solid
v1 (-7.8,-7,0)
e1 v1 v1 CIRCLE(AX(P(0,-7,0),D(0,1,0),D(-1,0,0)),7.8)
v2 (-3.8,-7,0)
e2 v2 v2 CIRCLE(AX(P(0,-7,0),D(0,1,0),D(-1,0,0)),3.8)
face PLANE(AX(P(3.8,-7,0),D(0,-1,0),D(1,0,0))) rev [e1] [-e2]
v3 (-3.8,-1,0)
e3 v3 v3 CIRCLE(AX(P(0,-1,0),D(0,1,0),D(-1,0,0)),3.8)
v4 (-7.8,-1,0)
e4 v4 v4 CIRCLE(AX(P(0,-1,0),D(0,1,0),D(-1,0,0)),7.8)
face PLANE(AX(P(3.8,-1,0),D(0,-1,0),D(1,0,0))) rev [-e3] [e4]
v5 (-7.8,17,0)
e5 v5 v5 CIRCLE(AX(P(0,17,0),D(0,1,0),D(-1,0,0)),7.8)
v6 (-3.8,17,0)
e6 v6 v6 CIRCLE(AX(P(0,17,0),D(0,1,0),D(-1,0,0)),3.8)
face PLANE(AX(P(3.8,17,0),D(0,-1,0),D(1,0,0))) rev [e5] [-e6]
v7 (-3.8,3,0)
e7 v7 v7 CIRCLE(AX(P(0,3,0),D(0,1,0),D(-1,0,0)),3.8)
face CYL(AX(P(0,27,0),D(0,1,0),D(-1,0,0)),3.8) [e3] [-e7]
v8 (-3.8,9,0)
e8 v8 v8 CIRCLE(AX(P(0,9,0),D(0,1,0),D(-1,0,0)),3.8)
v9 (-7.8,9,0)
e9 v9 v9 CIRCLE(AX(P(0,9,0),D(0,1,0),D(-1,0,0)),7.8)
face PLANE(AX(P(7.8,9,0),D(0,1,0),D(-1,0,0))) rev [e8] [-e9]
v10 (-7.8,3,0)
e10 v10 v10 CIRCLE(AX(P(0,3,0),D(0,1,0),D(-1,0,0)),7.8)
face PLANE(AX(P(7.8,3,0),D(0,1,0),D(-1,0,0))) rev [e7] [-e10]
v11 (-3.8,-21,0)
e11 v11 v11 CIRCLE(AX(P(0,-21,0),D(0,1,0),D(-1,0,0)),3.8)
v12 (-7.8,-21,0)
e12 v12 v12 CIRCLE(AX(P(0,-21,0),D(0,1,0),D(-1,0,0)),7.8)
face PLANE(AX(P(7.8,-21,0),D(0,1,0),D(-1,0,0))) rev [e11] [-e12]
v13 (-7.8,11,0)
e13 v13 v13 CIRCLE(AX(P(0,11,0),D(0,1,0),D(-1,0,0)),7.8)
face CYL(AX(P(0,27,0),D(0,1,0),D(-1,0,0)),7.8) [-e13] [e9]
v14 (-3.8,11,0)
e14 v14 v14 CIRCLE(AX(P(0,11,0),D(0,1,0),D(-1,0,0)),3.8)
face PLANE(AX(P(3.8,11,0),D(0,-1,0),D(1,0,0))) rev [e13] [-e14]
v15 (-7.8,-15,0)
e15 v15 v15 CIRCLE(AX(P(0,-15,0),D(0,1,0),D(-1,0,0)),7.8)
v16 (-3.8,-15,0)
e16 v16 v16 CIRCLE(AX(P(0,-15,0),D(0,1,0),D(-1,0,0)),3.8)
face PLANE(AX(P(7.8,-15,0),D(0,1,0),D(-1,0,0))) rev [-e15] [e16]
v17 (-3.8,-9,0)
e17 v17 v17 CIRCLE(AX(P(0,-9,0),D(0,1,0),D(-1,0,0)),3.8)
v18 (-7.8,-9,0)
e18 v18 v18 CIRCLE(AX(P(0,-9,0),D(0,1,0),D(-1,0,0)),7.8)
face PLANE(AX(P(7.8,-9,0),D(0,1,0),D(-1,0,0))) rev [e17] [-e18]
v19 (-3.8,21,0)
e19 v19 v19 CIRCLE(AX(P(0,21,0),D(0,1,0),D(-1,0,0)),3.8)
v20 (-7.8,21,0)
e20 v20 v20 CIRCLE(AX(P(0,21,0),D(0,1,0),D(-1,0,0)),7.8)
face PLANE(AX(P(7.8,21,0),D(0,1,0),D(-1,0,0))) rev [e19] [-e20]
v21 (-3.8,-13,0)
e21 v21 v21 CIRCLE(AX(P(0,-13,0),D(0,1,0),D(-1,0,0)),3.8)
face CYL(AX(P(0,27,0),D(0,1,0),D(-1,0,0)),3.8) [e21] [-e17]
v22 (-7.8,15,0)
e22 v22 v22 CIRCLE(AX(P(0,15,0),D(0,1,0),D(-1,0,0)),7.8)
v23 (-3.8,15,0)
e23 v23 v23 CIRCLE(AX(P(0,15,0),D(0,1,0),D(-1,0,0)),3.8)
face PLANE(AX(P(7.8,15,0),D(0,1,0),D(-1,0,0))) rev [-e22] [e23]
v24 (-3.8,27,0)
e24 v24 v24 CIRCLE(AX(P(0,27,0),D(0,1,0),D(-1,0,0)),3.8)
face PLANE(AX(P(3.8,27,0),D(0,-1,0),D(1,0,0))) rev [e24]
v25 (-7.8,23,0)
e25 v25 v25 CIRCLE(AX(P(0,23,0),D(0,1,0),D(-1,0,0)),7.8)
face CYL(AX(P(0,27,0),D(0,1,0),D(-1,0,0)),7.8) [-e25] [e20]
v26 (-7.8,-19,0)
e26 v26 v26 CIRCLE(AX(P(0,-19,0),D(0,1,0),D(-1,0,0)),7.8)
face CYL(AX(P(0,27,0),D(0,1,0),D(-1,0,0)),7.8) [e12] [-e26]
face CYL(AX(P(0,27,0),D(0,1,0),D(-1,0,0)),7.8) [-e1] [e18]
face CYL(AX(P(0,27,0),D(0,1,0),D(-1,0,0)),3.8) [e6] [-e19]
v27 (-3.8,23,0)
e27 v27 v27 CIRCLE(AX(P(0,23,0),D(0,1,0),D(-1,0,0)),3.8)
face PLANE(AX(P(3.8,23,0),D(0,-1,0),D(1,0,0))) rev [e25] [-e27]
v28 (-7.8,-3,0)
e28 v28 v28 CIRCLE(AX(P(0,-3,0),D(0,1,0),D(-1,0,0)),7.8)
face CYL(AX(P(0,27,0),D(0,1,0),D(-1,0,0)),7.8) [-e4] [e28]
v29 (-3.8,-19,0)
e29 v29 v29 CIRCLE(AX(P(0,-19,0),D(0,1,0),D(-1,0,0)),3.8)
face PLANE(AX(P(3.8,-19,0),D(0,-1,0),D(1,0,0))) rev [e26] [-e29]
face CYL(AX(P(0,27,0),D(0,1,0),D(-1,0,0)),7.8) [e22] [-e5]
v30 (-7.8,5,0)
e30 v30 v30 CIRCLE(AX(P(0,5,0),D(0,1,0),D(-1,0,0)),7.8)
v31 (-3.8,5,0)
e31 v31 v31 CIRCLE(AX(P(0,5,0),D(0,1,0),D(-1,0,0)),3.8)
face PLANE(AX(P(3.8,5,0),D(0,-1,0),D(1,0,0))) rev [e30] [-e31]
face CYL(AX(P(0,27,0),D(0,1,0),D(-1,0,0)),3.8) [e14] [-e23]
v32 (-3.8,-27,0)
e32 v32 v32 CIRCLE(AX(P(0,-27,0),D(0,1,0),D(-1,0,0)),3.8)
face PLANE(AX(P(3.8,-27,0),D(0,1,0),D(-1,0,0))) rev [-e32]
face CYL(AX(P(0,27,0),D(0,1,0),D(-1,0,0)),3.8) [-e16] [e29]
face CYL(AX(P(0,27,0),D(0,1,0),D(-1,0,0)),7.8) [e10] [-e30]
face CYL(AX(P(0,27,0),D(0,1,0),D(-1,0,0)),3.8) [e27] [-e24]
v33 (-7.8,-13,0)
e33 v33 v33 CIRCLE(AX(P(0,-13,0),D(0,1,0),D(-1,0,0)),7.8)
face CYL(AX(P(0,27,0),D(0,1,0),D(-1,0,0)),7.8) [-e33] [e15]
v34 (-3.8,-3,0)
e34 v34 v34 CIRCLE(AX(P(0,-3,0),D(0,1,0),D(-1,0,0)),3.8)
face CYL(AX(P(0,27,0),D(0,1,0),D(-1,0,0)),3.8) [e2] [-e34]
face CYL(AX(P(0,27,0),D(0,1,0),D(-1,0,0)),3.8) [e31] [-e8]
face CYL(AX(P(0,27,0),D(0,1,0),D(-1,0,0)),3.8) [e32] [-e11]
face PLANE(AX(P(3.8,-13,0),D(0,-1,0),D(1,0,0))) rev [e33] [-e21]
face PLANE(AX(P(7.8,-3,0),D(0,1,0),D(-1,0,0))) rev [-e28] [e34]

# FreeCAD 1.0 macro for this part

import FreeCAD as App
import Part
import Sketcher
from FreeCAD import Vector

doc = App.newDocument("Part")
body = doc.addObject("PartDesign::Body", "Body")

# Sketch on XY plane
sketch1 = body.newObject("Sketcher::SketchObject", "Sketch")
sketch1.AttachmentSupport = (doc.getObject("XY_Plane"), [""])
sketch1.MapMode = "FlatFace"
sketch1.addGeometry(Part.LineSegment(Vector(3.8, 23, 0), Vector(3.8, 27, 0)), False)
sketch1.addGeometry(Part.LineSegment(Vector(3.8, 27, 0), Vector(0, 27, 0)), False)
sketch1.addGeometry(Part.LineSegment(Vector(0, 27, 0), Vector(0, -27, 0)), False)
sketch1.addGeometry(Part.LineSegment(Vector(0, -27, 0), Vector(3.8, -27, 0)), False)
sketch1.addGeometry(Part.LineSegment(Vector(3.8, -27, 0), Vector(3.8, -21, 0)), False)
sketch1.addGeometry(Part.LineSegment(Vector(3.8, -21, 0), Vector(7.8, -21, 0)), False)
sketch1.addGeometry(Part.LineSegment(Vector(7.8, -21, 0), Vector(7.8, -19, 0)), False)
sketch1.addGeometry(Part.LineSegment(Vector(7.8, -19, 0), Vector(3.8, -19, 0)), False)
sketch1.addGeometry(Part.LineSegment(Vector(3.8, -19, 0), Vector(3.8, -15, 0)), False)
sketch1.addGeometry(Part.LineSegment(Vector(3.8, -15, 0), Vector(7.8, -15, 0)), False)
sketch1.addGeometry(Part.LineSegment(Vector(7.8, -15, 0), Vector(7.8, -13, 0)), False)
sketch1.addGeometry(Part.LineSegment(Vector(7.8, -13, 0), Vector(3.8, -13, 0)), False)
sketch1.addGeometry(Part.LineSegment(Vector(3.8, -13, 0), Vector(3.8, -9, 0)), False)
sketch1.addGeometry(Part.LineSegment(Vector(3.8, -9, 0), Vector(7.8, -9, 0)), False)
sketch1.addGeometry(Part.LineSegment(Vector(7.8, -9, 0), Vector(7.8, -7, 0)), False)
sketch1.addGeometry(Part.LineSegment(Vector(7.8, -7, 0), Vector(3.8, -7, 0)), False)
sketch1.addGeometry(Part.LineSegment(Vector(3.8, -7, 0), Vector(3.8, -3, 0)), False)
sketch1.addGeometry(Part.LineSegment(Vector(3.8, -3, 0), Vector(7.8, -3, 0)), False)
sketch1.addGeometry(Part.LineSegment(Vector(7.8, -3, 0), Vector(7.8, -1, 0)), False)
sketch1.addGeometry(Part.LineSegment(Vector(7.8, -1, 0), Vector(3.8, -1, 0)), False)
sketch1.addGeometry(Part.LineSegment(Vector(3.8, -1, 0), Vector(3.8, 3, 0)), False)
sketch1.addGeometry(Part.LineSegment(Vector(3.8, 3, 0), Vector(7.8, 3, 0)), False)
sketch1.addGeometry(Part.LineSegment(Vector(7.8, 3, 0), Vector(7.8, 5, 0)), False)
sketch1.addGeometry(Part.LineSegment(Vector(7.8, 5, 0), Vector(3.8, 5, 0)), False)
sketch1.addGeometry(Part.LineSegment(Vector(3.8, 5, 0), Vector(3.8, 9, 0)), False)
sketch1.addGeometry(Part.LineSegment(Vector(3.8, 9, 0), Vector(7.8, 9, 0)), False)
sketch1.addGeometry(Part.LineSegment(Vector(7.8, 9, 0), Vector(7.8, 11, 0)), False)
sketch1.addGeometry(Part.LineSegment(Vector(7.8, 11, 0), Vector(3.8, 11, 0)), False)
sketch1.addGeometry(Part.LineSegment(Vector(3.8, 11, 0), Vector(3.8, 15, 0)), False)
sketch1.addGeometry(Part.LineSegment(Vector(3.8, 15, 0), Vector(7.8, 15, 0)), False)
sketch1.addGeometry(Part.LineSegment(Vector(7.8, 15, 0), Vector(7.8, 17, 0)), False)
sketch1.addGeometry(Part.LineSegment(Vector(7.8, 17, 0), Vector(3.8, 17, 0)), False)
sketch1.addGeometry(Part.LineSegment(Vector(3.8, 17, 0), Vector(3.8, 21, 0)), False)
sketch1.addGeometry(Part.LineSegment(Vector(3.8, 21, 0), Vector(7.8, 21, 0)), False)
sketch1.addGeometry(Part.LineSegment(Vector(7.8, 21, 0), Vector(7.8, 23, 0)), False)
sketch1.addGeometry(Part.LineSegment(Vector(7.8, 23, 0), Vector(3.8, 23, 0)), False)
sketch1.addConstraint(Sketcher.Constraint("Coincident", 0, 2, 1, 1))
sketch1.addConstraint(Sketcher.Constraint("Coincident", 1, 2, 2, 1))
sketch1.addConstraint(Sketcher.Constraint("Coincident", 2, 2, 3, 1))
sketch1.addConstraint(Sketcher.Constraint("Coincident", 3, 2, 4, 1))
sketch1.addConstraint(Sketcher.Constraint("Coincident", 4, 2, 5, 1))
sketch1.addConstraint(Sketcher.Constraint("Coincident", 5, 2, 6, 1))
sketch1.addConstraint(Sketcher.Constraint("Coincident", 6, 2, 7, 1))
sketch1.addConstraint(Sketcher.Constraint("Coincident", 7, 2, 8, 1))
sketch1.addConstraint(Sketcher.Constraint("Coincident", 8, 2, 9, 1))
sketch1.addConstraint(Sketcher.Constraint("Coincident", 9, 2, 10, 1))
sketch1.addConstraint(Sketcher.Constraint("Coincident", 10, 2, 11, 1))
sketch1.addConstraint(Sketcher.Constraint("Coincident", 11, 2, 12, 1))
sketch1.addConstraint(Sketcher.Constraint("Coincident", 12, 2, 13, 1))
sketch1.addConstraint(Sketcher.Constraint("Coincident", 13, 2, 14, 1))
sketch1.addConstraint(Sketcher.Constraint("Coincident", 14, 2, 15, 1))
sketch1.addConstraint(Sketcher.Constraint("Coincident", 15, 2, 16, 1))
sketch1.addConstraint(Sketcher.Constraint("Coincident", 16, 2, 17, 1))
sketch1.addConstraint(Sketcher.Constraint("Coincident", 17, 2, 18, 1))
sketch1.addConstraint(Sketcher.Constraint("Coincident", 18, 2, 19, 1))
sketch1.addConstraint(Sketcher.Constraint("Coincident", 19, 2, 20, 1))
sketch1.addConstraint(Sketcher.Constraint("Coincident", 20, 2, 21, 1))
sketch1.addConstraint(Sketcher.Constraint("Coincident", 21, 2, 22, 1))
sketch1.addConstraint(Sketcher.Constraint("Coincident", 22, 2, 23, 1))
sketch1.addConstraint(Sketcher.Constraint("Coincident", 23, 2, 24, 1))
sketch1.addConstraint(Sketcher.Constraint("Coincident", 24, 2, 25, 1))
sketch1.addConstraint(Sketcher.Constraint("Coincident", 25, 2, 26, 1))
sketch1.addConstraint(Sketcher.Constraint("Coincident", 26, 2, 27, 1))
sketch1.addConstraint(Sketcher.Constraint("Coincident", 27, 2, 28, 1))
sketch1.addConstraint(Sketcher.Constraint("Coincident", 28, 2, 29, 1))
sketch1.addConstraint(Sketcher.Constraint("Coincident", 29, 2, 30, 1))
sketch1.addConstraint(Sketcher.Constraint("Coincident", 30, 2, 31, 1))
sketch1.addConstraint(Sketcher.Constraint("Coincident", 31, 2, 32, 1))
sketch1.addConstraint(Sketcher.Constraint("Coincident", 32, 2, 33, 1))
sketch1.addConstraint(Sketcher.Constraint("Coincident", 33, 2, 34, 1))
sketch1.addConstraint(Sketcher.Constraint("Coincident", 34, 2, 35, 1))
sketch1.addConstraint(Sketcher.Constraint("Coincident", 35, 2, 0, 1))
sketch1.addConstraint(Sketcher.Constraint("Vertical", 0))
sketch1.addConstraint(Sketcher.Constraint("Horizontal", 1))
sketch1.addConstraint(Sketcher.Constraint("Vertical", 2))
sketch1.addConstraint(Sketcher.Constraint("Horizontal", 3))
sketch1.addConstraint(Sketcher.Constraint("Vertical", 4))
sketch1.addConstraint(Sketcher.Constraint("Horizontal", 5))
sketch1.addConstraint(Sketcher.Constraint("Vertical", 6))
sketch1.addConstraint(Sketcher.Constraint("Horizontal", 7))
sketch1.addConstraint(Sketcher.Constraint("Vertical", 8))
sketch1.addConstraint(Sketcher.Constraint("Horizontal", 9))
sketch1.addConstraint(Sketcher.Constraint("Vertical", 10))
sketch1.addConstraint(Sketcher.Constraint("Horizontal", 11))
sketch1.addConstraint(Sketcher.Constraint("Vertical", 12))
sketch1.addConstraint(Sketcher.Constraint("Horizontal", 13))
sketch1.addConstraint(Sketcher.Constraint("Vertical", 14))
sketch1.addConstraint(Sketcher.Constraint("Horizontal", 15))
sketch1.addConstraint(Sketcher.Constraint("Vertical", 16))
sketch1.addConstraint(Sketcher.Constraint("Horizontal", 17))
sketch1.addConstraint(Sketcher.Constraint("Vertical", 18))
sketch1.addConstraint(Sketcher.Constraint("Horizontal", 19))
sketch1.addConstraint(Sketcher.Constraint("Vertical", 20))
sketch1.addConstraint(Sketcher.Constraint("Horizontal", 21))
sketch1.addConstraint(Sketcher.Constraint("Vertical", 22))
sketch1.addConstraint(Sketcher.Constraint("Horizontal", 23))
sketch1.addConstraint(Sketcher.Constraint("Vertical", 24))
sketch1.addConstraint(Sketcher.Constraint("Horizontal", 25))
sketch1.addConstraint(Sketcher.Constraint("Vertical", 26))
sketch1.addConstraint(Sketcher.Constraint("Horizontal", 27))
sketch1.addConstraint(Sketcher.Constraint("Vertical", 28))
sketch1.addConstraint(Sketcher.Constraint("Horizontal", 29))
sketch1.addConstraint(Sketcher.Constraint("Vertical", 30))
sketch1.addConstraint(Sketcher.Constraint("Horizontal", 31))
sketch1.addConstraint(Sketcher.Constraint("Vertical", 32))
sketch1.addConstraint(Sketcher.Constraint("Horizontal", 33))
sketch1.addConstraint(Sketcher.Constraint("Vertical", 34))
sketch1.addConstraint(Sketcher.Constraint("Horizontal", 35))
sketch1.addConstraint(Sketcher.Constraint("Symmetric", 1, 2, 2, 2, -1, 1))
sketch1.addConstraint(Sketcher.Constraint("Symmetric", 16, 2, 20, 2, -1))
sketch1.addConstraint(Sketcher.Constraint("Symmetric", 12, 2, 24, 2, -1))
sketch1.addConstraint(Sketcher.Constraint("Symmetric", 8, 2, 28, 2, -1))
sketch1.addConstraint(Sketcher.Constraint("Symmetric", 4, 2, 32, 2, -1))
sketch1.addConstraint(Sketcher.Constraint("Vertical", 0, 2, 3, 2))
sketch1.addConstraint(Sketcher.Constraint("Vertical", 4, 2, 7, 2))
sketch1.addConstraint(Sketcher.Constraint("Vertical", 6, 2, 9, 2))
sketch1.addConstraint(Sketcher.Constraint("Vertical", 8, 2, 11, 2))
sketch1.addConstraint(Sketcher.Constraint("Vertical", 10, 2, 13, 2))
sketch1.addConstraint(Sketcher.Constraint("Vertical", 12, 2, 15, 2))
sketch1.addConstraint(Sketcher.Constraint("Vertical", 14, 2, 17, 2))
sketch1.addConstraint(Sketcher.Constraint("Vertical", 18, 2, 21, 2))
sketch1.addConstraint(Sketcher.Constraint("Vertical", 22, 2, 25, 2))
sketch1.addConstraint(Sketcher.Constraint("Vertical", 26, 2, 29, 2))
sketch1.addConstraint(Sketcher.Constraint("Vertical", 30, 2, 33, 2))
sketch1.addConstraint(Sketcher.Constraint("Equal", 35, 0))
sketch1.addConstraint(Sketcher.Constraint("Equal", 0, 8))
sketch1.addConstraint(Sketcher.Constraint("Equal", 6, 10))
sketch1.addConstraint(Sketcher.Constraint("Equal", 8, 12))
sketch1.addConstraint(Sketcher.Constraint("Equal", 10, 14))
sketch1.addConstraint(Sketcher.Constraint("Equal", 12, 16))
sketch1.addConstraint(Sketcher.Constraint("Equal", 14, 18))
sketch1.addConstraint(Sketcher.Constraint("Equal", 16, 20))
sketch1.addConstraint(Sketcher.Constraint("Equal", 18, 22))
sketch1.addConstraint(Sketcher.Constraint("Equal", 22, 26))
sketch1.addConstraint(Sketcher.Constraint("Equal", 26, 30))
sketch1.addConstraint(Sketcher.Constraint("Equal", 30, 34))
sketch1.addConstraint(Sketcher.Constraint("DistanceX", 5, 1, 5, 2, 4.0))
sketch1.addConstraint(Sketcher.Constraint("DistanceY", 2, 2, 2, 1, 54.0))
sketch1.addConstraint(Sketcher.Constraint("DistanceX", 1, 2, 1, 1, 3.8))
revolution = body.newObject("PartDesign::Revolution", "Revolution")
revolution.Profile = sketch1
revolution.ReferenceAxis = (sketch1, ["V_Axis"])
revolution.Angle = 360

doc.recompute()
